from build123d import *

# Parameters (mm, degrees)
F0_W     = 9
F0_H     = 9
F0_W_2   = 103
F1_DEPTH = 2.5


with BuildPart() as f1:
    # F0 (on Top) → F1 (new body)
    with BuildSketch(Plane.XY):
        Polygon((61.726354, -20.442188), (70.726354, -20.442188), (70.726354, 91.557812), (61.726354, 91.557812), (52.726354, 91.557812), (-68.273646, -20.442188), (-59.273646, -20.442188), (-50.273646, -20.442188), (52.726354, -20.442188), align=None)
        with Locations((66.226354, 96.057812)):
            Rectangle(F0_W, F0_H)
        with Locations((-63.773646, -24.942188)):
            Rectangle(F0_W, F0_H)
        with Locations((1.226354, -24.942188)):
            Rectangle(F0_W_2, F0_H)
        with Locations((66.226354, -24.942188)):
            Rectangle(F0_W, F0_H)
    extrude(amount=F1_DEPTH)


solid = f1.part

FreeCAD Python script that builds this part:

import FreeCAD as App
import Part
import Sketcher

V = App.Vector

doc = App.newDocument("Part")
body = doc.addObject("PartDesign::Body", "Body")

# Sketch on XY plane
sketch1 = body.newObject("Sketcher::SketchObject", "Sketch")
sketch1.AttachmentSupport = (doc.getObject("XY_Plane"), [""])
sketch1.MapMode = "FlatFace"
sketch1.addGeometry([
    Part.LineSegment(V(71, 101, 0), V(62, 101, 0)),  # 0
    Part.LineSegment(V(62, 101, 0), V(62, 92, 0)),  # 1
    Part.LineSegment(V(62, 92, 0), V(53, 92, 0)),  # 2
    Part.LineSegment(V(53, 92, 0), V(-68, -20, 0)),  # 3
    Part.LineSegment(V(-68, -20, 0), V(-68, -29, 0)),  # 4
    Part.LineSegment(V(-68, -29, 0), V(-59, -29, 0)),  # 5
    Part.LineSegment(V(-59, -29, 0), V(-59, -20, 0)),  # 6
    Part.LineSegment(V(-59, -20, 0), V(-50, -20, 0)),  # 7
    Part.LineSegment(V(-50, -20, 0), V(-50, -29, 0)),  # 8
    Part.LineSegment(V(-50, -29, 0), V(53, -29, 0)),  # 9
    Part.LineSegment(V(53, -29, 0), V(53, -20, 0)),  # 10
    Part.LineSegment(V(53, -20, 0), V(62, -20, 0)),  # 11
    Part.LineSegment(V(62, -20, 0), V(62, -29, 0)),  # 12
    Part.LineSegment(V(62, -29, 0), V(71, -29, 0)),  # 13
    Part.LineSegment(V(71, -29, 0), V(71, 101, 0)),  # 14
], False)
sketch1.addConstraint([
    Sketcher.Constraint("Coincident", 0, 2, 1, 1),
    Sketcher.Constraint("Coincident", 1, 2, 2, 1),
    Sketcher.Constraint("Coincident", 2, 2, 3, 1),
    Sketcher.Constraint("Coincident", 3, 2, 4, 1),
    Sketcher.Constraint("Coincident", 4, 2, 5, 1),
    Sketcher.Constraint("Coincident", 5, 2, 6, 1),
    Sketcher.Constraint("Coincident", 6, 2, 7, 1),
    Sketcher.Constraint("Coincident", 7, 2, 8, 1),
    Sketcher.Constraint("Coincident", 8, 2, 9, 1),
    Sketcher.Constraint("Coincident", 9, 2, 10, 1),
    Sketcher.Constraint("Coincident", 10, 2, 11, 1),
    Sketcher.Constraint("Coincident", 11, 2, 12, 1),
    Sketcher.Constraint("Coincident", 12, 2, 13, 1),
    Sketcher.Constraint("Coincident", 13, 2, 14, 1),
    Sketcher.Constraint("Coincident", 14, 2, 0, 1),
    Sketcher.Constraint("Horizontal", 0),
    Sketcher.Constraint("Vertical", 1),
    Sketcher.Constraint("Horizontal", 2),
    Sketcher.Constraint("Vertical", 4),
    Sketcher.Constraint("Horizontal", 5),
    Sketcher.Constraint("Vertical", 6),
    Sketcher.Constraint("Horizontal", 7),
    Sketcher.Constraint("Vertical", 8),
    Sketcher.Constraint("Horizontal", 9),
    Sketcher.Constraint("Vertical", 10),
    Sketcher.Constraint("Horizontal", 11),
    Sketcher.Constraint("Vertical", 12),
    Sketcher.Constraint("Horizontal", 13),
    Sketcher.Constraint("Vertical", 14),
    Sketcher.Constraint("Horizontal", 3, 2, 6, 2),
    Sketcher.Constraint("Horizontal", 5, 2, 8, 2),
    Sketcher.Constraint("Horizontal", 7, 2, 10, 2),
    Sketcher.Constraint("Horizontal", 9, 2, 12, 2),
    Sketcher.Constraint("Vertical", 2, 2, 9, 2),
    Sketcher.Constraint("Vertical", 1, 2, 11, 2),
    Sketcher.Constraint("Equal", 0, 2),
    Sketcher.Constraint("Equal", 2, 5),
    Sketcher.Constraint("Equal", 5, 7),
    Sketcher.Constraint("Equal", 13, 1),
    Sketcher.Constraint("Equal", 1, 4),
    Sketcher.Constraint("DistanceX", 0, 2, 0, 1, 9.0),
    Sketcher.Constraint("DistanceX", 9, 1, 9, 2, 103.0),
    Sketcher.Constraint("DistanceY", 14, 1, 14, 2, 130.0),
    Sketcher.Constraint("DistanceY", -1, 1, 0, 2, 100.557812),
    Sketcher.Constraint("DistanceX", -1, 1, 0, 2, 61.726354),
])
pad1 = body.newObject("PartDesign::Pad", "Pad")
pad1.Profile = sketch1
pad1.Length = 2.5

doc.recompute()
